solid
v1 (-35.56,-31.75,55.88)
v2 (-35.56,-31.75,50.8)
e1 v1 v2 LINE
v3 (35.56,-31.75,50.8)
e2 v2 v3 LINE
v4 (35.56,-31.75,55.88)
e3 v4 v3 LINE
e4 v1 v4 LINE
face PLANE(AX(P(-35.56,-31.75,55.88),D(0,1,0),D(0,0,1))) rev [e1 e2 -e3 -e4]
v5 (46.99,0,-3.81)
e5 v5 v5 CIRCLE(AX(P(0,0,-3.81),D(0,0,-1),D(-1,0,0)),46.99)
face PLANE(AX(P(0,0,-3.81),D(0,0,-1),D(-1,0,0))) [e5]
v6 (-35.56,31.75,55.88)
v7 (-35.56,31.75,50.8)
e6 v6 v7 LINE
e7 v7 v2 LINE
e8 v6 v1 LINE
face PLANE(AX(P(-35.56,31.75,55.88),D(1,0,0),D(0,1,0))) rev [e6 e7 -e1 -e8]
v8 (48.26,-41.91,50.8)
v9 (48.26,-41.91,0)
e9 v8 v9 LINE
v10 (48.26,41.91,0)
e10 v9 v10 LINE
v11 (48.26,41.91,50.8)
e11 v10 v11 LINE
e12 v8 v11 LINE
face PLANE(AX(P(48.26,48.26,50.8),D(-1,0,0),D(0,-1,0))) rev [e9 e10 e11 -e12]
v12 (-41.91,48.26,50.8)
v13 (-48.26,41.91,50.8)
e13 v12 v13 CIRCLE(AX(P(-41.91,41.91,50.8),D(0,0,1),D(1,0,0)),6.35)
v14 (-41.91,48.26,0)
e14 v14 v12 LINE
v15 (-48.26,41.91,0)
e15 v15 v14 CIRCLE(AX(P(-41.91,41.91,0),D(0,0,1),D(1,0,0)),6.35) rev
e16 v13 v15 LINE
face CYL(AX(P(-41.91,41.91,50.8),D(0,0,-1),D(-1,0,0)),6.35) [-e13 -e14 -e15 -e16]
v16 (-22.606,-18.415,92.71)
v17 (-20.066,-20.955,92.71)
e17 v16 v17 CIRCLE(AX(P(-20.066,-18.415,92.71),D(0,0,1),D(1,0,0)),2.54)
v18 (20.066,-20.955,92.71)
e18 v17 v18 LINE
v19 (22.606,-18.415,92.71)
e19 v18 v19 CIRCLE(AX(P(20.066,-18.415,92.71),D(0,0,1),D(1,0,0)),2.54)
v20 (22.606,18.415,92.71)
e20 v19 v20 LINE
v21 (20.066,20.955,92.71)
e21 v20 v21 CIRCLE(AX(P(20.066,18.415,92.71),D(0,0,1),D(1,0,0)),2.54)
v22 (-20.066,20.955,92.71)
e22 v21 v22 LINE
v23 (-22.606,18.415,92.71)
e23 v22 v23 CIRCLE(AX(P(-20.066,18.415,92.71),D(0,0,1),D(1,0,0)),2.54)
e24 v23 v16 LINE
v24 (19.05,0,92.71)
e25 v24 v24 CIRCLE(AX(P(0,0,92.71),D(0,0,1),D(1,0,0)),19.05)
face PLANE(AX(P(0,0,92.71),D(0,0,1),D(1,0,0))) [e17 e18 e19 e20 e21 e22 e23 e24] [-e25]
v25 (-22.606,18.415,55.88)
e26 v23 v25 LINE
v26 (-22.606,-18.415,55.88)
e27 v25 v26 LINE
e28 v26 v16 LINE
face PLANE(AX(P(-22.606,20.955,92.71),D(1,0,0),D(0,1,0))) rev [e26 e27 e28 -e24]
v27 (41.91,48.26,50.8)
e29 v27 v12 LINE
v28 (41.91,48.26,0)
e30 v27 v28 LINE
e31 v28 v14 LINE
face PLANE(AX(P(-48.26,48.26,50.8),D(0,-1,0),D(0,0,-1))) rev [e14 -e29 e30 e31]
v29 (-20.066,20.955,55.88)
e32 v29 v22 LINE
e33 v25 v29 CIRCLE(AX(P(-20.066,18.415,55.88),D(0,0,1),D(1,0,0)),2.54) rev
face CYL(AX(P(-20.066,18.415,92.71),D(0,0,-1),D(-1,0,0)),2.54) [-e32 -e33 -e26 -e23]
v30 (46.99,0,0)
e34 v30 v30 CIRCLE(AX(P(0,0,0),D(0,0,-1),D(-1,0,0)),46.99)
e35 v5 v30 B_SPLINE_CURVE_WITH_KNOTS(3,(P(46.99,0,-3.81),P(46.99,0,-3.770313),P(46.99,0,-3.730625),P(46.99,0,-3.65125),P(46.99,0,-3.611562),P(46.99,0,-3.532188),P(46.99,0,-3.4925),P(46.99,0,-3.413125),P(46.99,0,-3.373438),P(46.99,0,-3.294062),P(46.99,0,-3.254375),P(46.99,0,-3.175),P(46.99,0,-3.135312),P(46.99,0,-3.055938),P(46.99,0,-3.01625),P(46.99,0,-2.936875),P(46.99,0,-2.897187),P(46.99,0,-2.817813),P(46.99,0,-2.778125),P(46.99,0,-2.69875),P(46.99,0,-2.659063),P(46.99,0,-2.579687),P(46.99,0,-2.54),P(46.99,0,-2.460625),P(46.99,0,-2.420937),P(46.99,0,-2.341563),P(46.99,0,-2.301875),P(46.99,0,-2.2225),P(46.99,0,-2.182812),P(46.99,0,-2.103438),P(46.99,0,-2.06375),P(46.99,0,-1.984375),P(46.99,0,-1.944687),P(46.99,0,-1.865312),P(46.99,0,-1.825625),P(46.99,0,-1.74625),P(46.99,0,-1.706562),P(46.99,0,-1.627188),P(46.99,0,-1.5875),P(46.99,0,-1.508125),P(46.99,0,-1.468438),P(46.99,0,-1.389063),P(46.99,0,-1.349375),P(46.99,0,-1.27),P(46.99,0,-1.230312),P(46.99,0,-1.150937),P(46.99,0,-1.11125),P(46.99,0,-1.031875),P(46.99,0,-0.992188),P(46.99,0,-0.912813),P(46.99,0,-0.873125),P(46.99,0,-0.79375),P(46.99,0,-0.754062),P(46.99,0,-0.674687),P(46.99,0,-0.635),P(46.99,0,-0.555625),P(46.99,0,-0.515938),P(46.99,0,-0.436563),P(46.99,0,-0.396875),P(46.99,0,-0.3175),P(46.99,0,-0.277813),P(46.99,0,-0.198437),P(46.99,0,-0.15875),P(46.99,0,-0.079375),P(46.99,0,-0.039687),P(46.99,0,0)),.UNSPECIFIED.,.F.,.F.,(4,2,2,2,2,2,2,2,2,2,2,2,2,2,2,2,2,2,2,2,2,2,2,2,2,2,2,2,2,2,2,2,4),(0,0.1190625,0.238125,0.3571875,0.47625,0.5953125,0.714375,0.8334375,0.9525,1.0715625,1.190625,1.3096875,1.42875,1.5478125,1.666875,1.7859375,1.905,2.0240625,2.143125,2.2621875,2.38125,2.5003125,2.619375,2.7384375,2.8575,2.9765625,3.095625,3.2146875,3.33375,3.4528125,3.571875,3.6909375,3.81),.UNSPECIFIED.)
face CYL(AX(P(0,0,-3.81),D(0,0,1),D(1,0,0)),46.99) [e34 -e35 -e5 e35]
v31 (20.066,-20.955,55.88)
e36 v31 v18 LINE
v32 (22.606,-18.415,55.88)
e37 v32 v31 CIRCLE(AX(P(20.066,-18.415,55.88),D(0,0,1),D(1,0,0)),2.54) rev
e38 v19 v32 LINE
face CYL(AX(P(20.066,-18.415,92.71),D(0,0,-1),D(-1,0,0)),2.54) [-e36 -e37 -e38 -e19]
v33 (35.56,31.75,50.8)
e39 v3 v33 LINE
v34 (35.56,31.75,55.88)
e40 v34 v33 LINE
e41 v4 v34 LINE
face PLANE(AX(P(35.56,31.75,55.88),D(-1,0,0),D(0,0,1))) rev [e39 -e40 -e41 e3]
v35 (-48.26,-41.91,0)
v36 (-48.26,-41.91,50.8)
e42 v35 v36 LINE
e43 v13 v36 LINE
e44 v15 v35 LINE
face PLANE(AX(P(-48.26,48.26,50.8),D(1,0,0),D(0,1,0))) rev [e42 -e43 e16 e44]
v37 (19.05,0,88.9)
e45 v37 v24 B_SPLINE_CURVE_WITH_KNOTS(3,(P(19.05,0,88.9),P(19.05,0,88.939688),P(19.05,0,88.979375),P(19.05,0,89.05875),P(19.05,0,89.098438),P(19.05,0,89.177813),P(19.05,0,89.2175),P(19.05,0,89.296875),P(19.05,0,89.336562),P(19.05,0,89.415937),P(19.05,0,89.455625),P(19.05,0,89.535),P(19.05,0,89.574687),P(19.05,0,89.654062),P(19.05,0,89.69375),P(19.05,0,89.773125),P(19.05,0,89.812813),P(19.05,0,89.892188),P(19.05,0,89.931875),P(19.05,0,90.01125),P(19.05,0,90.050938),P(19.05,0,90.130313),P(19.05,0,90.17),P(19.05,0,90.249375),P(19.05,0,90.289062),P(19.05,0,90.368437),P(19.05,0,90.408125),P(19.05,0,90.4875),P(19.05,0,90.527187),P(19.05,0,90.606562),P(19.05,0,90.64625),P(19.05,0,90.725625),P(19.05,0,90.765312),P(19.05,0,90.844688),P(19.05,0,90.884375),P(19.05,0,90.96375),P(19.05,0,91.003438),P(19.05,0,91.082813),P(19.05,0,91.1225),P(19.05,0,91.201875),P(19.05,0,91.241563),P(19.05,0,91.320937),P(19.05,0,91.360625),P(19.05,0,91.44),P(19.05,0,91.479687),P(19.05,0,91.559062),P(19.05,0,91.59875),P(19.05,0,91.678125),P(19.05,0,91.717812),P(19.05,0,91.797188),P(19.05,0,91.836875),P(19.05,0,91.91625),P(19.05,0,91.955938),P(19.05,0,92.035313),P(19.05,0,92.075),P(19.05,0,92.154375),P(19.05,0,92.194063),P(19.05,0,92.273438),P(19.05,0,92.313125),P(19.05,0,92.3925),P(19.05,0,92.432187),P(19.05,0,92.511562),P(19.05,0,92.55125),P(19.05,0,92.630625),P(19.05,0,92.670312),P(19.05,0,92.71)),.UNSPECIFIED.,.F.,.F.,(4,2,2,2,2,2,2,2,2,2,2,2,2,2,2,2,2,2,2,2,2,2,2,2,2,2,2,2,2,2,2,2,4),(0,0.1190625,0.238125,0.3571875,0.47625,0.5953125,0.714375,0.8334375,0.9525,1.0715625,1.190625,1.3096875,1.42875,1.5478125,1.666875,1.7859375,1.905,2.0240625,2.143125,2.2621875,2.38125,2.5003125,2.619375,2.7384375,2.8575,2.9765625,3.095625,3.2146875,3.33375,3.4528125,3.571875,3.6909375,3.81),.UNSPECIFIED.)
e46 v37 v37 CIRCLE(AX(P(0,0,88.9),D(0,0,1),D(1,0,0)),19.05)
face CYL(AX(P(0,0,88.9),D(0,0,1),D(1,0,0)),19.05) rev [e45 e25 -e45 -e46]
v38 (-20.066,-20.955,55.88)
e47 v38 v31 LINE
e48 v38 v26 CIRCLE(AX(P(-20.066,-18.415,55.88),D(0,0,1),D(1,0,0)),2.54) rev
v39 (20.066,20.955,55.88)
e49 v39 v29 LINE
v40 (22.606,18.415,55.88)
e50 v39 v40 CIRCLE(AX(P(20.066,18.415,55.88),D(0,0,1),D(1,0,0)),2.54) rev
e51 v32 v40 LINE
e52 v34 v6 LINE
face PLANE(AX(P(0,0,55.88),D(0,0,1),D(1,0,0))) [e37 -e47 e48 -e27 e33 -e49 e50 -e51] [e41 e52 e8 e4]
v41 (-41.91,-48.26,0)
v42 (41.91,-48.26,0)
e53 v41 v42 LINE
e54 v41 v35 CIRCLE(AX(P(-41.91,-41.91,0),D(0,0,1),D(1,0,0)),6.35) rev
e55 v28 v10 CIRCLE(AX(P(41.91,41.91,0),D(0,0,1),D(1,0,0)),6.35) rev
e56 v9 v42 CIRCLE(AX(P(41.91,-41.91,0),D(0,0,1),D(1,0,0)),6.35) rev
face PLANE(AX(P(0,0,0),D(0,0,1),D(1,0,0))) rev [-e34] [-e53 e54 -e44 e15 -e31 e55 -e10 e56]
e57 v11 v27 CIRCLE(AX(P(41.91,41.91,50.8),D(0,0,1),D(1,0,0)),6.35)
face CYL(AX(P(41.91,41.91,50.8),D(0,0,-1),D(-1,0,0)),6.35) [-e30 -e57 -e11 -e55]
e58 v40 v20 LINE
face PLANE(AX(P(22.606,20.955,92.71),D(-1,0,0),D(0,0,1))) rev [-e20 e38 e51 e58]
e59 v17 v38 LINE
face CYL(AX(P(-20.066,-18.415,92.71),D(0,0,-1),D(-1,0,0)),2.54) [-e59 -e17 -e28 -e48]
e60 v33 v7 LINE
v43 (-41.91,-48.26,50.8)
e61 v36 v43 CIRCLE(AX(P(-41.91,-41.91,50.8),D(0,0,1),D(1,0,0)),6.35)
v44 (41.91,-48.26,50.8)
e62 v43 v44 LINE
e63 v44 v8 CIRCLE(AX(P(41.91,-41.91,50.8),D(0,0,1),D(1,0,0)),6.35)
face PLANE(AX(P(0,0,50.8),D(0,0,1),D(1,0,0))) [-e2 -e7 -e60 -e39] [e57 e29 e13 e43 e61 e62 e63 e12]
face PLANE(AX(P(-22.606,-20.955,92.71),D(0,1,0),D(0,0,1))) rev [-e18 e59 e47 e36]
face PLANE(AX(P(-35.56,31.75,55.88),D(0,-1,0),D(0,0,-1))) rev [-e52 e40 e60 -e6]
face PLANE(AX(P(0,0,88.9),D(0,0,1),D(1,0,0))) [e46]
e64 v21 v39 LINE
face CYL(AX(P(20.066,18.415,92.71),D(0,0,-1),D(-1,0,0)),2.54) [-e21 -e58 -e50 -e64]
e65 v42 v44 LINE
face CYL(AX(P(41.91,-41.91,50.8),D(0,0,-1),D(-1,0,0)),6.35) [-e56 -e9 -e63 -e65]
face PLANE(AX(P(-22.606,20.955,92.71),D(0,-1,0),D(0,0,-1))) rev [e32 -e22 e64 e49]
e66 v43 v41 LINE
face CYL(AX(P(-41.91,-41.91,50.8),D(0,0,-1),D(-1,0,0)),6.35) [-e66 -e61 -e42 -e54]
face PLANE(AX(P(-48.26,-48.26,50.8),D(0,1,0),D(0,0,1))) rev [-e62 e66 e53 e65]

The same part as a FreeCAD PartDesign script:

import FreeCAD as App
import Part
import Sketcher

V = App.Vector
Q = App.Units.Quantity


def edges_at(feature, points):
    """Names of the edges that pass closest to the given points."""
    edges = feature.Shape.Edges
    near = lambda p: min(range(len(edges)), key=lambda i: edges[i].distToShape(Part.Vertex(*p))[0])
    return sorted({f"Edge{near(p) + 1}" for p in points})

doc = App.newDocument("Part")
body = doc.addObject("PartDesign::Body", "Body")

sketch1 = doc.addObject("Sketcher::SketchObject", "Sketch")
body.addObject(sketch1)
sketch1.AttachmentSupport = (doc.XY_Plane, [""])
sketch1.MapMode = "FlatFace"
sketch1.addGeometry([
    Part.LineSegment(V(-48.26, 48.26, 0), V(-48.26, -48.26, 0)),
    Part.LineSegment(V(-48.26, -48.26, 0), V(48.26, -48.26, 0)),
    Part.LineSegment(V(48.26, -48.26, 0), V(48.26, 48.26, 0)),
    Part.LineSegment(V(48.26, 48.26, 0), V(-48.26, 48.26, 0)),
], False)
sketch1.addConstraint([
    Sketcher.Constraint("Coincident", 0, 2, 1, 1),
    Sketcher.Constraint("Coincident", 1, 2, 2, 1),
    Sketcher.Constraint("Coincident", 2, 2, 3, 1),
    Sketcher.Constraint("Coincident", 3, 2, 0, 1),
    Sketcher.Constraint("Vertical", 0),
    Sketcher.Constraint("Horizontal", 1),
    Sketcher.Constraint("Vertical", 2),
    Sketcher.Constraint("Horizontal", 3),
    Sketcher.Constraint("Symmetric", 0, 2, 2, 2, -1, 1),
    Sketcher.Constraint("Equal", 3, 0),
    Sketcher.Constraint("DistanceX", 1, 1, 1, 2, Q("3.8 in")),
])
pad1 = doc.addObject("PartDesign::Pad", "Pad")
body.addObject(pad1)
pad1.Profile = sketch1
pad1.Length = Q("2 in")

sketch2 = doc.addObject("Sketcher::SketchObject", "Sketch001")
body.addObject(sketch2)
sketch2.AttachmentSupport = (doc.XY_Plane, [""])
sketch2.MapMode = "FlatFace"
sketch2.AttachmentOffset = App.Placement(V(0, 0, 2 * 25.4), App.Rotation())
sketch2.addGeometry([
    Part.LineSegment(V(-35.56, 31.75, 0), V(-35.56, -31.75, 0)),
    Part.LineSegment(V(-35.56, -31.75, 0), V(35.56, -31.75, 0)),
    Part.LineSegment(V(35.56, -31.75, 0), V(35.56, 31.75, 0)),
    Part.LineSegment(V(35.56, 31.75, 0), V(-35.56, 31.75, 0)),
], False)
sketch2.addConstraint([
    Sketcher.Constraint("Coincident", 0, 2, 1, 1),
    Sketcher.Constraint("Coincident", 1, 2, 2, 1),
    Sketcher.Constraint("Coincident", 2, 2, 3, 1),
    Sketcher.Constraint("Coincident", 3, 2, 0, 1),
    Sketcher.Constraint("Vertical", 0),
    Sketcher.Constraint("Horizontal", 1),
    Sketcher.Constraint("Vertical", 2),
    Sketcher.Constraint("Horizontal", 3),
    Sketcher.Constraint("Symmetric", 0, 2, 2, 2, -1, 1),
    Sketcher.Constraint("DistanceX", 1, 1, 1, 2, Q("2.8 in")),
    Sketcher.Constraint("DistanceY", 0, 2, 0, 1, Q("2.5 in")),
])
pad2 = doc.addObject("PartDesign::Pad", "Pad001")
body.addObject(pad2)
pad2.Profile = sketch2
pad2.Length = Q("0.2 in")

sketch3 = doc.addObject("Sketcher::SketchObject", "Sketch002")
body.addObject(sketch3)
sketch3.AttachmentSupport = (doc.XY_Plane, [""])
sketch3.MapMode = "FlatFace"
sketch3.AttachmentOffset = App.Placement(V(0, 0, 2.2 * 25.4), App.Rotation())
sketch3.addGeometry([
    Part.LineSegment(V(-22.606, 20.955, 0), V(-22.606, -20.955, 0)),
    Part.LineSegment(V(-22.606, -20.955, 0), V(22.606, -20.955, 0)),
    Part.LineSegment(V(22.606, -20.955, 0), V(22.606, 20.955, 0)),
    Part.LineSegment(V(22.606, 20.955, 0), V(-22.606, 20.955, 0)),
], False)
sketch3.addConstraint([
    Sketcher.Constraint("Coincident", 0, 2, 1, 1),
    Sketcher.Constraint("Coincident", 1, 2, 2, 1),
    Sketcher.Constraint("Coincident", 2, 2, 3, 1),
    Sketcher.Constraint("Coincident", 3, 2, 0, 1),
    Sketcher.Constraint("Vertical", 0),
    Sketcher.Constraint("Horizontal", 1),
    Sketcher.Constraint("Vertical", 2),
    Sketcher.Constraint("Horizontal", 3),
    Sketcher.Constraint("Symmetric", 0, 2, 2, 2, -1, 1),
    Sketcher.Constraint("DistanceX", 1, 1, 1, 2, Q("1.78 in")),
    Sketcher.Constraint("DistanceY", 0, 2, 0, 1, Q("1.65 in")),
])
pad3 = doc.addObject("PartDesign::Pad", "Pad002")
body.addObject(pad3)
pad3.Profile = sketch3
pad3.Length = Q("1.45 in")

sketch4 = doc.addObject("Sketcher::SketchObject", "Sketch003")
body.addObject(sketch4)
sketch4.AttachmentSupport = (doc.XY_Plane, [""])
sketch4.MapMode = "FlatFace"
sketch4.AttachmentOffset = App.Placement(V(0, 0, 3.65 * 25.4), App.Rotation())
sketch4.addGeometry(Part.Circle(V(0, 0, 0), V(0, 0, 1), 19.05), False)
sketch4.addConstraint([
    Sketcher.Constraint("Coincident", 0, 3, -1, 1),
    Sketcher.Constraint("Diameter", 0, Q("1.5 in")),
])
pocket1 = doc.addObject("PartDesign::Pocket", "Pocket")
body.addObject(pocket1)
pocket1.Profile = sketch4
pocket1.Length = Q("0.15 in")

sketch5 = doc.addObject("Sketcher::SketchObject", "Sketch004")
body.addObject(sketch5)
sketch5.AttachmentSupport = (doc.XY_Plane, [""])
sketch5.MapMode = "FlatFace"
sketch5.addGeometry(Part.Circle(V(0, 0, 0), V(0, 0, 1), 46.99), False)
sketch5.addConstraint([
    Sketcher.Constraint("Coincident", 0, 3, -1, 1),
    Sketcher.Constraint("Diameter", 0, Q("3.7 in")),
])
pad4 = doc.addObject("PartDesign::Pad", "Pad003")
body.addObject(pad4)
pad4.Profile = sketch5
pad4.Length = Q("0.15 in")
pad4.Reversed = True
doc.recompute()

fillet = doc.addObject("PartDesign::Fillet", "Fillet")
body.addObject(fillet)
fillet.Base = (pad4, edges_at(pad4, [
    (22.606, -20.955, 74.295),
    (22.606, 20.955, 74.295),
    (-22.606, 20.955, 74.295),
    (-22.606, -20.955, 74.295),
]))
fillet.Radius = Q("0.1 in")
doc.recompute()

fillet2 = doc.addObject("PartDesign::Fillet", "Fillet001")
body.addObject(fillet2)
fillet2.Base = (fillet, edges_at(fillet, [
    (48.26, -48.26, 25.4),
    (-48.26, -48.26, 25.4),
    (-48.26, 48.26, 25.4),
    (48.26, 48.26, 25.4),
]))
fillet2.Radius = Q("0.25 in")

doc.recompute()
